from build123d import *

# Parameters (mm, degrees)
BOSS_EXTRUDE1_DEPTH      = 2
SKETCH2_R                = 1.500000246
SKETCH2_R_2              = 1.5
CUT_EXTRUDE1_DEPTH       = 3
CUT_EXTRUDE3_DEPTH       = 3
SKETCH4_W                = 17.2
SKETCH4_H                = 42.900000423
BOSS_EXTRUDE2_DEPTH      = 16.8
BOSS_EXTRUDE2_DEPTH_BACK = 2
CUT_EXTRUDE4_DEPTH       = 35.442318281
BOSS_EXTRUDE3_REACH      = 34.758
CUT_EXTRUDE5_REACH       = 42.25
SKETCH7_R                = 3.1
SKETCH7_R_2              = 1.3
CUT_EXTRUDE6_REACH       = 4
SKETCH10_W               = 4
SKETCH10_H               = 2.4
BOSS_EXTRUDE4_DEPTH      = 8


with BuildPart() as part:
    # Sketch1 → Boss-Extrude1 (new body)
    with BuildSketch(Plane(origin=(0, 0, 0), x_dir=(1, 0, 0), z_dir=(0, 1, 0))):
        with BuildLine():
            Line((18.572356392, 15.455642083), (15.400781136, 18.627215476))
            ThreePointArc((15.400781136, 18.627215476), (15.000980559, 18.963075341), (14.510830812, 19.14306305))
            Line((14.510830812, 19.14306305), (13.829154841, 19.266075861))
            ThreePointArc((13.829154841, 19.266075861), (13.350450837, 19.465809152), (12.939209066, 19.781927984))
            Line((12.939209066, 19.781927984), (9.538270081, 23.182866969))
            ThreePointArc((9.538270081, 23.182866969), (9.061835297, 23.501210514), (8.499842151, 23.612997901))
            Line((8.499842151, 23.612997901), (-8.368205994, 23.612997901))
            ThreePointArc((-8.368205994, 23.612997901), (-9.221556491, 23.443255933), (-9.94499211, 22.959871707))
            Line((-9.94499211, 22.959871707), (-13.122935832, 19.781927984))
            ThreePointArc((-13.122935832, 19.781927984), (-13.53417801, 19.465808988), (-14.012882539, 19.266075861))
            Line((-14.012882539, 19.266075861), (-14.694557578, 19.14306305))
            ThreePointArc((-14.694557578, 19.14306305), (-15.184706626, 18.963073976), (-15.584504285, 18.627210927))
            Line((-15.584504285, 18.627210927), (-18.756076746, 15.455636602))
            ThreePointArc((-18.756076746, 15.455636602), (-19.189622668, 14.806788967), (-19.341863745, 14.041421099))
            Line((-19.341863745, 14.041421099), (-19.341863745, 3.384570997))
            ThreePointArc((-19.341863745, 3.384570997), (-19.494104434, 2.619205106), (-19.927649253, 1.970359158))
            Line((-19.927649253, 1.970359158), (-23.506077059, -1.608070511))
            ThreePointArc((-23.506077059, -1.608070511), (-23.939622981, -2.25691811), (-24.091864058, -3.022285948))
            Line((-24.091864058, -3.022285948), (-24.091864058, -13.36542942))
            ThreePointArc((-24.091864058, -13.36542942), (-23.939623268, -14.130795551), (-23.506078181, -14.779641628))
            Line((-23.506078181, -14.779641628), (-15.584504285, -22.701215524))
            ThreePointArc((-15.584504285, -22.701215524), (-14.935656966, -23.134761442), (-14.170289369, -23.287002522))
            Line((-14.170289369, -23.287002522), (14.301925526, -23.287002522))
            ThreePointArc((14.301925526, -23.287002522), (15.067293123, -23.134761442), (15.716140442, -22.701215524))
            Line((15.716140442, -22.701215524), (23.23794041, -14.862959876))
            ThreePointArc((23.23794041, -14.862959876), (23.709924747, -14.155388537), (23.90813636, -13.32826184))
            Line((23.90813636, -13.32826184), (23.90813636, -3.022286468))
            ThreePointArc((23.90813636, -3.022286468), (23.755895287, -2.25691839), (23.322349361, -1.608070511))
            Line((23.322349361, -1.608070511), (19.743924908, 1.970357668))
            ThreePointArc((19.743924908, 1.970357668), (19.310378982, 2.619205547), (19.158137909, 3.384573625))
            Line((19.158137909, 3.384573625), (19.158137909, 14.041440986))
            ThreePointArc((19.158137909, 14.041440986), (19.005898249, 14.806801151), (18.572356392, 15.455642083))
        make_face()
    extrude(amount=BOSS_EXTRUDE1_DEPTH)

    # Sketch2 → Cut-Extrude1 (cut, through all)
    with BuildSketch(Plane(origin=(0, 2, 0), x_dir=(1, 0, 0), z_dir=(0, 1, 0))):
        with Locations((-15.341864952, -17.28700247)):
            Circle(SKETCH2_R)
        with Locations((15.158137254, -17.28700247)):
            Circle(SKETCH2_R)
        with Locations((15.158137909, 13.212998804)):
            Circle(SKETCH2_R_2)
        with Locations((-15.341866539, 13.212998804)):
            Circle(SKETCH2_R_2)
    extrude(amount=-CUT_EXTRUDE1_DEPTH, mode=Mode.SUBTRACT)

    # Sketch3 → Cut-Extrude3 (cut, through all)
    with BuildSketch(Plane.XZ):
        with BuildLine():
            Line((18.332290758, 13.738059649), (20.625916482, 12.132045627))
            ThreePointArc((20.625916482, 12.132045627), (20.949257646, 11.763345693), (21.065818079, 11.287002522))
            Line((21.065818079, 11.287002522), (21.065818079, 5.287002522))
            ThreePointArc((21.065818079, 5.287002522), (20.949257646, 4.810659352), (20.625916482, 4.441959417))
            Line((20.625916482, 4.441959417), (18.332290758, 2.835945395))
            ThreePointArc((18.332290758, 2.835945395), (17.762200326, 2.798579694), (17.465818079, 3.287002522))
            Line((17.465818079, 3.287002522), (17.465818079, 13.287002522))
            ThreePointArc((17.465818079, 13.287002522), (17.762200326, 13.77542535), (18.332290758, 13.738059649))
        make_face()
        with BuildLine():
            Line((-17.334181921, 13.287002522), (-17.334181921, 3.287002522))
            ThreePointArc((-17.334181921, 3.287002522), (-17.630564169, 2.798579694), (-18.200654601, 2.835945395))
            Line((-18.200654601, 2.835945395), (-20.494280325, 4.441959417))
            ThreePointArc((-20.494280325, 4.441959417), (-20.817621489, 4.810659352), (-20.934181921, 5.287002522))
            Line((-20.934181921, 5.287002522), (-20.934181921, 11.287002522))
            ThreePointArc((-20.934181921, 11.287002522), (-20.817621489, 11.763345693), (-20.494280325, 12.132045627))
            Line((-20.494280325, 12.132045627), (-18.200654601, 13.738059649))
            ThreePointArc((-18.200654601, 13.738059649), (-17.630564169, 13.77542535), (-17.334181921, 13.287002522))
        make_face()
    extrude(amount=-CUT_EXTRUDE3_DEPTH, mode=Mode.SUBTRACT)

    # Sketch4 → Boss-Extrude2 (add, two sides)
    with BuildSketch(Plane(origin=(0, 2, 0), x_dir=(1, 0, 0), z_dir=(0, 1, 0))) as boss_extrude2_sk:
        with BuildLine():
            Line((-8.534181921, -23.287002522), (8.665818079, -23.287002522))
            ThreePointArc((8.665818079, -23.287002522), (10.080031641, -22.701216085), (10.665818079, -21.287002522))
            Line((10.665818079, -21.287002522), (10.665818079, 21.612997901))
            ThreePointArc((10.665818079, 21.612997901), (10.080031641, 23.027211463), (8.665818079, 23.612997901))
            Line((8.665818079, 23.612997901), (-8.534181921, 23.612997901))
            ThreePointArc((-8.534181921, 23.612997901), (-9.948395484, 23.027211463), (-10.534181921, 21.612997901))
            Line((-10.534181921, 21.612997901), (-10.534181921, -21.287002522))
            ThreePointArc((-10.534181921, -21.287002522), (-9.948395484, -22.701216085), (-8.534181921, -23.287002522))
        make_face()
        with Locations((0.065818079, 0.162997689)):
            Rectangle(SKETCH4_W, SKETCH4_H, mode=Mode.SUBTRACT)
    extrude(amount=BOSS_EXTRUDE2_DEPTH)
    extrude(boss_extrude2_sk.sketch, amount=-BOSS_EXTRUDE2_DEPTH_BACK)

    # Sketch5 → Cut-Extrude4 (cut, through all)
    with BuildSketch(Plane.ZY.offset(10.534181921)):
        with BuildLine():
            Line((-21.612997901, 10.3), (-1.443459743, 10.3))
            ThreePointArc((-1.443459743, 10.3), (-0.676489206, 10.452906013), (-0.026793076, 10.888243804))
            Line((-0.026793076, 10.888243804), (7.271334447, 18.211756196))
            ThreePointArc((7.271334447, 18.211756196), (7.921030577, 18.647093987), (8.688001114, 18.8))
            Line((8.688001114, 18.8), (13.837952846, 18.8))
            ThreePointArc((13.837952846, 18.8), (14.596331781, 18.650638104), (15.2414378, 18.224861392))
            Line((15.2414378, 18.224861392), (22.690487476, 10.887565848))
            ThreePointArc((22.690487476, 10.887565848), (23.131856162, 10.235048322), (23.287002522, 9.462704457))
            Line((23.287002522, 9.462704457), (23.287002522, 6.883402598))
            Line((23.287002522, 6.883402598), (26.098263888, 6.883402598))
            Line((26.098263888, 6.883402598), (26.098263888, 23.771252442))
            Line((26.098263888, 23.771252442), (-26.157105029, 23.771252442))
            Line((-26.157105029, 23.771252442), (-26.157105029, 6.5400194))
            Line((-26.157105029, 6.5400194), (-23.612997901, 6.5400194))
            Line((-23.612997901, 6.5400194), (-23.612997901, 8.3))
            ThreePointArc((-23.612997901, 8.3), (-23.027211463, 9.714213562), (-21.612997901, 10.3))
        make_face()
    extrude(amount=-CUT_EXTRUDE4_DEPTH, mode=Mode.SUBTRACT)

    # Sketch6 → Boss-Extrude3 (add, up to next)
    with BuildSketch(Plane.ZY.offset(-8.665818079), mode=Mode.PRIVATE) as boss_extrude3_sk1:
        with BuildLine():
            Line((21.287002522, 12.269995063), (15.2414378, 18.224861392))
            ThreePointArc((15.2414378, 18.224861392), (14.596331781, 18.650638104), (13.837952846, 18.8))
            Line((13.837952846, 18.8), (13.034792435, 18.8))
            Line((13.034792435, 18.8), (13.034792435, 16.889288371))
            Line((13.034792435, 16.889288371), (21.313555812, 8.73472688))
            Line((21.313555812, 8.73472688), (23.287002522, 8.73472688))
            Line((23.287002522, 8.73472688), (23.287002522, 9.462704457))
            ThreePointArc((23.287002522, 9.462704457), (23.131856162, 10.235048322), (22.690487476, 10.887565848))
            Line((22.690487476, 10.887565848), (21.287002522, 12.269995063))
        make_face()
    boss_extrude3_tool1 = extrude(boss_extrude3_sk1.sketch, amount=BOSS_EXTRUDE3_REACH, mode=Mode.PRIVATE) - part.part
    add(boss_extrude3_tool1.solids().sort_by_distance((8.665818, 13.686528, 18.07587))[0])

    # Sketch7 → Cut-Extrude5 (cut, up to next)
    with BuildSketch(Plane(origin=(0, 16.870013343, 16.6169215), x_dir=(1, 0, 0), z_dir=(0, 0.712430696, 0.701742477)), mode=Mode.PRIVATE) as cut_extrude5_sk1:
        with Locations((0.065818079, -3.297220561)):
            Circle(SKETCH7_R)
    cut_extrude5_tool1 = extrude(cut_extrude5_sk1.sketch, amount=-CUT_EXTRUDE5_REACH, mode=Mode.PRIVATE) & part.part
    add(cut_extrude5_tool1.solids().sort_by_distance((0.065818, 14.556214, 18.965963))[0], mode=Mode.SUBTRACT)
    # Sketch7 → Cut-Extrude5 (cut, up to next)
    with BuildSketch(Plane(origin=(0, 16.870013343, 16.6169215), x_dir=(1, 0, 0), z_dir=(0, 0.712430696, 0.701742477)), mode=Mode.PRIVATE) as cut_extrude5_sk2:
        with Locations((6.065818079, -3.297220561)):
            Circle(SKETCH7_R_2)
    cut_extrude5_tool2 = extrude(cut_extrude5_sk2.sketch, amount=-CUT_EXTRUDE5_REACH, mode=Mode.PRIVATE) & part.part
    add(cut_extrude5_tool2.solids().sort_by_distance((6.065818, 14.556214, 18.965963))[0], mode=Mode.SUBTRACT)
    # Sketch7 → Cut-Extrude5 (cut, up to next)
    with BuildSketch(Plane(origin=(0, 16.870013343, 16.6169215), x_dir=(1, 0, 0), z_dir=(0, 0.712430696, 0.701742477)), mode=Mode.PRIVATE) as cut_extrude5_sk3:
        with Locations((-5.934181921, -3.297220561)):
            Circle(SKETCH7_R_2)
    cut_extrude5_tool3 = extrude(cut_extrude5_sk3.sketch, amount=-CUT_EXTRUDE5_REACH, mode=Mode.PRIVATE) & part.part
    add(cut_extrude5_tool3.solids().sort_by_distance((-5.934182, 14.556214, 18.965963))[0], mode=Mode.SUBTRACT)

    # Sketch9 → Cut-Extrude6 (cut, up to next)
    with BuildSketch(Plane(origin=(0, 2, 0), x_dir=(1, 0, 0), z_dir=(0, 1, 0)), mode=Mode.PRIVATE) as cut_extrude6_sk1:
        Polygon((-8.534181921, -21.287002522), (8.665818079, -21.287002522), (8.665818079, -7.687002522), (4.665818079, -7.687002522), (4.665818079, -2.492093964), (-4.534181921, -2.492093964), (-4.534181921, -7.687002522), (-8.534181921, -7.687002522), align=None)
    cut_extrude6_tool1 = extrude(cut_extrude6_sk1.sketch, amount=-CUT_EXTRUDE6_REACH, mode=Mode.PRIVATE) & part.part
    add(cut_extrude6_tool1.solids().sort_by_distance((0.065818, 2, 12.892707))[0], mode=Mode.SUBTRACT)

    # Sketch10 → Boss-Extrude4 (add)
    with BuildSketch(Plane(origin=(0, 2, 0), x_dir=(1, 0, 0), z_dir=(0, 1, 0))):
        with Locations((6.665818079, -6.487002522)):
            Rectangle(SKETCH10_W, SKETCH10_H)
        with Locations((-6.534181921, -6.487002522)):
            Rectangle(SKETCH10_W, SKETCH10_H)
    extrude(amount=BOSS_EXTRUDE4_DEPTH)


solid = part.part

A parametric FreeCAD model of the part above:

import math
import FreeCAD as App
import Part
import Sketcher
Q = App.Units.Quantity


def add_polygon(sketch, points):
    """Adds a closed chain of lines whose ends are joined by coincident constraints."""
    first, n = sketch.GeometryCount, len(points)
    for a, b in zip(points, points[1:] + points[:1]):
        sketch.addGeometry(Part.LineSegment(App.Vector(*a, 0), App.Vector(*b, 0)), False)
    for i in range(n):
        sketch.addConstraint(Sketcher.Constraint("Coincident", first + i, 2, first + (i + 1) % n, 1))

doc = App.newDocument("Part")
body = doc.addObject("PartDesign::Body", "Body")

sketch1 = body.newObject("Sketcher::SketchObject", "Sketch")
sketch1.AttachmentSupport = (doc.getObject("XZ_Plane"), [""])
sketch1.MapMode = "FlatFace"
sketch1.addGeometry([
    Part.LineSegment(App.Vector(18.572356, -15.455642, 0), App.Vector(15.400781, -18.627215, 0)),
    Part.ArcOfCircle(Part.Circle(App.Vector(14.242087, -17.653817, 0), App.Vector(0, 0, 1), 1.5133), math.radians(-79.770698), math.radians(-40.033021)),
    Part.LineSegment(App.Vector(14.510831, -19.143063, 0), App.Vector(13.829155, -19.266076, 0)),
    Part.ArcOfCircle(Part.Circle(App.Vector(14.353436, -21.196155, 0), App.Vector(0, 0, 1), 2.000019), math.radians(105.196974), math.radians(135)),
    Part.LineSegment(App.Vector(12.939209, -19.781928, 0), App.Vector(9.53827, -23.182867, 0)),
    Part.ArcOfCircle(Part.Circle(App.Vector(8.499842, -22.144439, 0), App.Vector(0, 0, 1), 1.468559), math.radians(-90), math.radians(-45)),
    Part.LineSegment(App.Vector(8.499842, -23.612998, 0), App.Vector(-8.368206, -23.612998, 0)),
    Part.ArcOfCircle(Part.Circle(App.Vector(-8.368206, -21.383086, 0), App.Vector(0, 0, 1), 2.229912), math.radians(-135), math.radians(-90)),
    Part.LineSegment(App.Vector(-9.944992, -22.959872, 0), App.Vector(-13.122936, -19.781928, 0)),
    Part.ArcOfCircle(Part.Circle(App.Vector(-14.537162, -21.196154, 0), App.Vector(0, 0, 1), 2.000018), math.radians(45), math.radians(74.803078)),
    Part.LineSegment(App.Vector(-14.012883, -19.266076, 0), App.Vector(-14.694558, -19.143063, 0)),
    Part.ArcOfCircle(Part.Circle(App.Vector(-14.425817, -17.65384, 0), App.Vector(0, 0, 1), 1.513276), math.radians(-139.967606), math.radians(-100.229316)),
    Part.LineSegment(App.Vector(-15.584504, -18.627211, 0), App.Vector(-18.756077, -15.455637, 0)),
    Part.ArcOfCircle(Part.Circle(App.Vector(-17.34186, -14.041421, 0), App.Vector(0, 0, 1), 2.000003), math.radians(-180), math.radians(-135.000017)),
    Part.LineSegment(App.Vector(-19.341864, -14.041421, 0), App.Vector(-19.341864, -3.384571, 0)),
    Part.ArcOfCircle(Part.Circle(App.Vector(-21.341862, -3.384571, 0), App.Vector(0, 0, 1), 1.999998), math.radians(0), math.radians(44.999985)),
    Part.LineSegment(App.Vector(-19.927649, -1.970359, 0), App.Vector(-23.506077, 1.608071, 0)),
    Part.ArcOfCircle(Part.Circle(App.Vector(-22.091861, 3.022286, 0), App.Vector(0, 0, 1), 2.000003), math.radians(180), math.radians(224.999985)),
    Part.LineSegment(App.Vector(-24.091864, 3.022286, 0), App.Vector(-24.091864, 13.365429, 0)),
    Part.ArcOfCircle(Part.Circle(App.Vector(-22.091866, 13.365429, 0), App.Vector(0, 0, 1), 1.999998), math.radians(135), math.radians(180)),
    Part.LineSegment(App.Vector(-23.506078, 14.779642, 0), App.Vector(-15.584504, 22.701216, 0)),
    Part.ArcOfCircle(Part.Circle(App.Vector(-14.170289, 21.287001, 0), App.Vector(0, 0, 1), 2.000002), math.radians(90), math.radians(135)),
    Part.LineSegment(App.Vector(-14.170289, 23.287003, 0), App.Vector(14.301926, 23.287003, 0)),
    Part.ArcOfCircle(Part.Circle(App.Vector(14.301926, 21.287001, 0), App.Vector(0, 0, 1), 2.000002), math.radians(45), math.radians(90)),
    Part.LineSegment(App.Vector(15.71614, 22.701216, 0), App.Vector(23.23794, 14.86296, 0)),
    Part.ArcOfCircle(Part.Circle(App.Vector(21.490703, 13.186264, 0), App.Vector(0, 0, 1), 2.4216), math.radians(3.361638), math.radians(43.81973)),
    Part.LineSegment(App.Vector(23.908136, 13.328262, 0), App.Vector(23.908136, 3.022286, 0)),
    Part.ArcOfCircle(Part.Circle(App.Vector(21.908132, 3.022286, 0), App.Vector(0, 0, 1), 2.000004), math.radians(-44.99997), math.radians(0)),
    Part.LineSegment(App.Vector(23.322349, 1.608071, 0), App.Vector(19.743925, -1.970358, 0)),
    Part.ArcOfCircle(Part.Circle(App.Vector(21.158142, -3.384574, 0), App.Vector(0, 0, 1), 2.000004), math.radians(135.00003), math.radians(180)),
    Part.LineSegment(App.Vector(19.158138, -3.384574, 0), App.Vector(19.158138, -14.041441, 0)),
    Part.ArcOfCircle(Part.Circle(App.Vector(17.158156, -14.041441, 0), App.Vector(0, 0, 1), 1.999982), math.radians(-45.000017), math.radians(0)),
], False)
sketch1.addConstraint([
    Sketcher.Constraint("Coincident", 0, 2, 1, 2),
    Sketcher.Constraint("Coincident", 1, 1, 2, 1),
    Sketcher.Constraint("Coincident", 2, 2, 3, 1),
    Sketcher.Constraint("Coincident", 3, 2, 4, 1),
    Sketcher.Constraint("Coincident", 4, 2, 5, 2),
    Sketcher.Constraint("Coincident", 5, 1, 6, 1),
    Sketcher.Constraint("Coincident", 6, 2, 7, 2),
    Sketcher.Constraint("Coincident", 7, 1, 8, 1),
    Sketcher.Constraint("Coincident", 8, 2, 9, 1),
    Sketcher.Constraint("Coincident", 9, 2, 10, 1),
    Sketcher.Constraint("Coincident", 10, 2, 11, 2),
    Sketcher.Constraint("Coincident", 11, 1, 12, 1),
    Sketcher.Constraint("Coincident", 12, 2, 13, 2),
    Sketcher.Constraint("Coincident", 13, 1, 14, 1),
    Sketcher.Constraint("Coincident", 14, 2, 15, 1),
    Sketcher.Constraint("Coincident", 15, 2, 16, 1),
    Sketcher.Constraint("Coincident", 16, 2, 17, 2),
    Sketcher.Constraint("Coincident", 17, 1, 18, 1),
    Sketcher.Constraint("Coincident", 18, 2, 19, 2),
    Sketcher.Constraint("Coincident", 19, 1, 20, 1),
    Sketcher.Constraint("Coincident", 20, 2, 21, 2),
    Sketcher.Constraint("Coincident", 21, 1, 22, 1),
    Sketcher.Constraint("Coincident", 22, 2, 23, 2),
    Sketcher.Constraint("Coincident", 23, 1, 24, 1),
    Sketcher.Constraint("Coincident", 24, 2, 25, 2),
    Sketcher.Constraint("Coincident", 25, 1, 26, 1),
    Sketcher.Constraint("Coincident", 26, 2, 27, 2),
    Sketcher.Constraint("Coincident", 27, 1, 28, 1),
    Sketcher.Constraint("Coincident", 28, 2, 29, 1),
    Sketcher.Constraint("Coincident", 29, 2, 30, 1),
    Sketcher.Constraint("Coincident", 30, 2, 31, 2),
    Sketcher.Constraint("Coincident", 31, 1, 0, 1),
    Sketcher.Constraint("Horizontal", 6),
    Sketcher.Constraint("Vertical", 14),
    Sketcher.Constraint("Vertical", 18),
    Sketcher.Constraint("Horizontal", 22),
    Sketcher.Constraint("Vertical", 26),
    Sketcher.Constraint("Vertical", 30),
    Sketcher.Constraint("Radius", 15, Q("1.999998 mm")),
    Sketcher.Constraint("Radius", 19, Q("1.999998 mm")),
    Sketcher.Constraint("Radius", 21, Q("2.000002 mm")),
    Sketcher.Constraint("Radius", 23, Q("2.000002 mm")),
    Sketcher.Constraint("DistanceX", 15, 3, 13, 3, Q("4.000001 mm")),
    Sketcher.Constraint("Radius", 1, Q("1.5133 mm")),
    Sketcher.Constraint("Radius", 25, Q("2.4216 mm")),
    Sketcher.Constraint("Radius", 3, Q("2.000019 mm")),
    Sketcher.Constraint("Radius", 5, Q("1.468559 mm")),
    Sketcher.Constraint("Radius", 31, Q("1.999982 mm")),
    Sketcher.Constraint("DistanceX", 17, 3, 15, 3, Q("0.749999 mm")),
    Sketcher.Constraint("DistanceY", 15, 3, 19, 3, Q("16.75 mm")),
    Sketcher.Constraint("DistanceX", 17, 1, 14, 2, Q("4.75 mm")),
    Sketcher.Constraint("DistanceX", 29, 2, 26, 2, Q("4.749998 mm")),
    Sketcher.Constraint("DistanceY", -1, 1, 21, 3, Q("21.287001 mm")),
    Sketcher.Constraint("Radius", 7, Q("2.229912 mm")),
    Sketcher.Constraint("Radius", 9, Q("2.000018 mm")),
    Sketcher.Constraint("Radius", 11, Q("1.513276 mm")),
    Sketcher.Constraint("Radius", 27, Q("2.000004 mm")),
    Sketcher.Constraint("Radius", 29, Q("2.000004 mm")),
    Sketcher.Constraint("DistanceY", 5, 3, 31, 3, Q("8.102998 mm")),
    Sketcher.Constraint("DistanceX", 23, 1, 29, 3, Q("5.442002 mm")),
    Sketcher.Constraint("DistanceX", 6, 2, 6, 1, Q("16.868048 mm")),
    Sketcher.Constraint("DistanceY", 14, 1, 14, 2, Q("10.65685 mm")),
    Sketcher.Constraint("DistanceX", 9, 3, 3, 3, Q("28.890598 mm")),
    Sketcher.Constraint("DistanceY", 5, 3, 11, 3, Q("4.490599 mm")),
    Sketcher.Constraint("DistanceX", 13, 3, 9, 3, Q("2.804699 mm")),
    Sketcher.Constraint("DistanceX", 5, 3, 29, 3, Q("12.6583 mm")),
    Sketcher.Constraint("DistanceY", 0, 2, 1, 3, Q("0.973399 mm")),
    Sketcher.Constraint("DistanceX", 23, 1, 24, 2, Q("7.5218 mm")),
    Sketcher.Constraint("DistanceY", 25, 1, 24, 2, Q("1.534698 mm")),
    Sketcher.Constraint("DistanceY", 31, 1, 30, 2, Q("1.414201 mm")),
    Sketcher.Constraint("DistanceX", 31, 3, 31, 1, Q("1.4142 mm")),
    Sketcher.Constraint("Distance", 8, Q("4.494291 mm")),
    Sketcher.Constraint("Distance", 28, Q("5.060659 mm")),
    Sketcher.Constraint("DistanceX", 22, 1, 22, 2, Q("28.472215 mm")),
    Sketcher.Constraint("DistanceY", 18, 1, 18, 2, Q("10.343143 mm")),
    Sketcher.Constraint("DistanceY", 26, 2, 26, 1, Q("10.305975 mm")),
    Sketcher.Constraint("DistanceY", 30, 2, 30, 1, Q("10.656867 mm")),
    Sketcher.Constraint("DistanceY", 5, 3, -1, 1, Q("22.144439 mm")),
    Sketcher.Constraint("DistanceX", 9, 3, -1, 1, Q("14.537162 mm")),
    Sketcher.Constraint("DistanceY", 13, 3, -1, 1, Q("14.041421 mm")),
    Sketcher.Constraint("DistanceY", 15, 3, -1, 1, Q("3.384571 mm")),
    Sketcher.Constraint("DistanceX", 21, 3, -1, 1, Q("14.170289 mm")),
    Sketcher.Constraint("DistanceX", -1, 1, 27, 3, Q("21.908132 mm")),
    Sketcher.Constraint("DistanceX", -1, 1, 0, 2, Q("15.400781 mm")),
    Sketcher.Constraint("DistanceX", -1, 1, 1, 1, Q("14.510831 mm")),
    Sketcher.Constraint("DistanceX", -1, 1, 3, 2, Q("12.939209 mm")),
    Sketcher.Constraint("DistanceX", -1, 1, 4, 2, Q("9.53827 mm")),
    Sketcher.Constraint("DistanceY", 7, 1, -1, 1, Q("22.959872 mm")),
    Sketcher.Constraint("DistanceY", 11, 1, -1, 1, Q("18.627211 mm")),
    Sketcher.Constraint("DistanceY", 13, 1, -1, 1, Q("14.041421 mm")),
    Sketcher.Constraint("DistanceX", 15, 2, -1, 1, Q("19.927649 mm")),
    Sketcher.Constraint("DistanceY", -1, 1, 16, 2, Q("1.608071 mm")),
    Sketcher.Constraint("DistanceY", -1, 1, 18, 2, Q("13.365429 mm")),
    Sketcher.Constraint("DistanceX", 19, 1, -1, 1, Q("23.506078 mm")),
    Sketcher.Constraint("DistanceX", 21, 1, -1, 1, Q("14.170289 mm")),
    Sketcher.Constraint("DistanceY", -1, 1, 24, 2, Q("14.86296 mm")),
    Sketcher.Constraint("DistanceX", -1, 1, 27, 1, Q("23.322349 mm")),
    Sketcher.Constraint("DistanceY", -1, 1, 27, 1, Q("1.608071 mm")),
    Sketcher.Constraint("DistanceY", 3, 3, 1, 3, Q("3.542338 mm")),
    Sketcher.Constraint("DistanceX", 7, 3, 5, 3, Q("16.868048 mm")),
    Sketcher.Constraint("DistanceY", 7, 3, 3, 3, Q("0.18693 mm")),
    Sketcher.Constraint("DistanceY", 7, 3, 9, 3, Q("0.186932 mm")),
    Sketcher.Constraint("DistanceX", 11, 3, 7, 3, Q("6.057611 mm")),
    Sketcher.Constraint("DistanceY", 9, 3, 17, 3, Q("24.21844 mm")),
    Sketcher.Constraint("DistanceX", 19, 3, 23, 3, Q("36.393791 mm")),
    Sketcher.Constraint("DistanceY", 29, 3, 27, 3, Q("6.40686 mm")),
    Sketcher.Constraint("DistanceX", 2, 2, 1, 3, Q("0.412932 mm")),
    Sketcher.Constraint("DistanceX", 11, 3, 6, 2, Q("6.057611 mm")),
    Sketcher.Constraint("DistanceX", 9, 3, 9, 2, Q("0.524279 mm")),
    Sketcher.Constraint("DistanceX", 10, 2, 11, 3, Q("0.26874 mm")),
    Sketcher.Constraint("DistanceX", 12, 2, 11, 3, Q("4.330259 mm")),
    Sketcher.Constraint("DistanceX", 19, 3, 20, 2, Q("6.507362 mm")),
])
pad1 = body.newObject("PartDesign::Pad", "Pad")
pad1.Profile = sketch1
pad1.Length = 2
pad1.Reversed = True

sketch2 = body.newObject("Sketcher::SketchObject", "Sketch001")
sketch2.AttachmentSupport = (doc.getObject("XZ_Plane"), [""])
sketch2.MapMode = "FlatFace"
sketch2.AttachmentOffset = App.Placement(App.Vector(0, 0, -2), App.Rotation())
sketch2.addGeometry([
    Part.Circle(App.Vector(-15.3, 17.3, 0), App.Vector(0, 0, 1), 1.5),
    Part.Circle(App.Vector(15.2, 17.3, 0), App.Vector(0, 0, 1), 1.5),
    Part.Circle(App.Vector(15.2, -13.2, 0), App.Vector(0, 0, 1), 1.5),
    Part.Circle(App.Vector(-15.3, -13.2, 0), App.Vector(0, 0, 1), 1.5),
], False)
sketch2.addConstraint([
    Sketcher.Constraint("Equal", 0, 1),
    Sketcher.Constraint("Equal", 1, 2),
    Sketcher.Constraint("Equal", 2, 3),
    Sketcher.Constraint("Horizontal", 0, 3, 1, 3),
    Sketcher.Constraint("Horizontal", 2, 3, 3, 3),
    Sketcher.Constraint("Vertical", 1, 3, 2, 3),
    Sketcher.Constraint("Vertical", 0, 3, 3, 3),
    Sketcher.Constraint("Diameter", 0, Q("3 mm")),
    Sketcher.Constraint("DistanceY", 2, 3, 1, 3, Q("30.500001 mm")),
    Sketcher.Constraint("DistanceY", 2, 3, -1, 1, Q("13.212999 mm")),
    Sketcher.Constraint("DistanceX", 0, 3, -1, 1, Q("15.341865 mm")),
    Sketcher.Constraint("DistanceX", -1, 1, 1, 3, Q("15.158137 mm")),
])
pocket1 = body.newObject("PartDesign::Pocket", "Pocket")
pocket1.Profile = sketch2
pocket1.Type = "ThroughAll"
pocket1.Reversed = True

sketch3 = body.newObject("Sketcher::SketchObject", "Sketch002")
sketch3.AttachmentSupport = (doc.getObject("XZ_Plane"), [""])
sketch3.MapMode = "FlatFace"
sketch3.addGeometry([
    Part.LineSegment(App.Vector(20.6, 12.1, 0), App.Vector(18.3, 13.7, 0)),
    Part.ArcOfCircle(Part.Circle(App.Vector(18, 13.3, 0), App.Vector(0, 0, 1), 0.6), math.radians(55), math.radians(180)),
    Part.LineSegment(App.Vector(17.5, 13.3, 0), App.Vector(17.5, 3.3, 0)),
    Part.ArcOfCircle(Part.Circle(App.Vector(18, 3.3, 0), App.Vector(0, 0, 1), 0.6), math.radians(180), math.radians(305)),
    Part.LineSegment(App.Vector(18.3, 2.8, 0), App.Vector(20.6, 4.4, 0)),
    Part.ArcOfCircle(Part.Circle(App.Vector(20, 5.3, 0), App.Vector(0, 0, 1), 1), math.radians(-55), math.radians(0)),
    Part.LineSegment(App.Vector(21.1, 5.3, 0), App.Vector(21.1, 11.3, 0)),
    Part.ArcOfCircle(Part.Circle(App.Vector(20, 11.3, 0), App.Vector(0, 0, 1), 1), math.radians(0), math.radians(55)),
    Part.LineSegment(App.Vector(-17.3, 3.3, 0), App.Vector(-17.3, 13.3, 0)),
    Part.ArcOfCircle(Part.Circle(App.Vector(-17.9, 13.3, 0), App.Vector(0, 0, 1), 0.6), math.radians(0), math.radians(125)),
    Part.LineSegment(App.Vector(-18.2, 13.7, 0), App.Vector(-20.5, 12.1, 0)),
    Part.ArcOfCircle(Part.Circle(App.Vector(-19.9, 11.3, 0), App.Vector(0, 0, 1), 1), math.radians(125), math.radians(180)),
    Part.LineSegment(App.Vector(-20.9, 11.3, 0), App.Vector(-20.9, 5.3, 0)),
    Part.ArcOfCircle(Part.Circle(App.Vector(-19.9, 5.3, 0), App.Vector(0, 0, 1), 1), math.radians(180), math.radians(235)),
    Part.LineSegment(App.Vector(-20.5, 4.4, 0), App.Vector(-18.2, 2.8, 0)),
    Part.ArcOfCircle(Part.Circle(App.Vector(-17.9, 3.3, 0), App.Vector(0, 0, 1), 0.6), math.radians(-125), math.radians(0)),
], False)
sketch3.addConstraint([
    Sketcher.Constraint("Tangent", 0, 2, 1, 1),
    Sketcher.Constraint("Tangent", 1, 2, 2, 1),
    Sketcher.Constraint("Tangent", 2, 2, 3, 1),
    Sketcher.Constraint("Tangent", 3, 2, 4, 1),
    Sketcher.Constraint("Tangent", 4, 2, 5, 1),
    Sketcher.Constraint("Tangent", 5, 2, 6, 1),
    Sketcher.Constraint("Tangent", 6, 2, 7, 1),
    Sketcher.Constraint("Tangent", 7, 2, 0, 1),
    Sketcher.Constraint("Tangent", 8, 2, 9, 1),
    Sketcher.Constraint("Tangent", 9, 2, 10, 1),
    Sketcher.Constraint("Tangent", 10, 2, 11, 1),
    Sketcher.Constraint("Tangent", 11, 2, 12, 1),
    Sketcher.Constraint("Tangent", 12, 2, 13, 1),
    Sketcher.Constraint("Tangent", 13, 2, 14, 1),
    Sketcher.Constraint("Tangent", 14, 2, 15, 1),
    Sketcher.Constraint("Tangent", 15, 2, 8, 1),
    Sketcher.Constraint("Vertical", 2),
    Sketcher.Constraint("Vertical", 6),
    Sketcher.Constraint("Vertical", 8),
    Sketcher.Constraint("Vertical", 12),
    Sketcher.Constraint("Equal", 1, 3),
    Sketcher.Constraint("Equal", 5, 7),
    Sketcher.Constraint("Equal", 3, 9),
    Sketcher.Constraint("Equal", 7, 11),
    Sketcher.Constraint("Equal", 11, 13),
    Sketcher.Constraint("Equal", 9, 15),
    Sketcher.Constraint("Parallel", 4, 10),
    Sketcher.Constraint("Parallel", 0, 14),
    Sketcher.Constraint("Horizontal", 1, 3, 9, 3),
    Sketcher.Constraint("Horizontal", 7, 3, 11, 3),
    Sketcher.Constraint("Horizontal", 5, 3, 13, 3),
    Sketcher.Constraint("Horizontal", 3, 3, 15, 3),
    Sketcher.Constraint("DistanceY", 2, 2, 2, 1, Q("10 mm")),
    Sketcher.Constraint("DistanceY", 6, 1, 6, 2, Q("6 mm")),
    Sketcher.Constraint("Angle", 0, Q("145 deg")),
    Sketcher.Constraint("Distance", 0, Q("2.8 mm")),
    Sketcher.Constraint("DistanceX", 2, 2, 5, 2, Q("3.6 mm")),
    Sketcher.Constraint("DistanceX", 8, 2, 1, 2, Q("34.8 mm")),
    Sketcher.Constraint("DistanceX", -1, 1, 5, 3, Q("20.034211 mm")),
    Sketcher.Constraint("DistanceY", -1, 1, 0, 2, Q("13.73806 mm")),
])
pocket2 = body.newObject("PartDesign::Pocket", "Pocket001")
pocket2.Profile = sketch3
pocket2.Type = "ThroughAll"

sketch4 = body.newObject("Sketcher::SketchObject", "Sketch003")
sketch4.AttachmentSupport = (doc.getObject("XZ_Plane"), [""])
sketch4.MapMode = "FlatFace"
sketch4.AttachmentOffset = App.Placement(App.Vector(0, 0, -2), App.Rotation())
sketch4.addGeometry(Part.LineSegment(App.Vector(-8.5, 23.3, 0), App.Vector(8.7, 23.3, 0)), False)
sketch4.addGeometry(Part.ArcOfCircle(Part.Circle(App.Vector(8.7, 21.3, 0), App.Vector(0, 0, 1), 2), math.radians(0), math.radians(90)), False)
sketch4.addGeometry(Part.LineSegment(App.Vector(10.7, 21.3, 0), App.Vector(10.7, -21.6, 0)), False)
sketch4.addGeometry(Part.ArcOfCircle(Part.Circle(App.Vector(8.7, -21.6, 0), App.Vector(0, 0, 1), 2), math.radians(-90), math.radians(0)), False)
sketch4.addGeometry(Part.LineSegment(App.Vector(8.7, -23.6, 0), App.Vector(-8.5, -23.6, 0)), False)
sketch4.addGeometry(Part.ArcOfCircle(Part.Circle(App.Vector(-8.5, -21.6, 0), App.Vector(0, 0, 1), 2), math.radians(180), math.radians(270)), False)
sketch4.addGeometry(Part.LineSegment(App.Vector(-10.5, -21.6, 0), App.Vector(-10.5, 21.3, 0)), False)
sketch4.addGeometry(Part.ArcOfCircle(Part.Circle(App.Vector(-8.5, 21.3, 0), App.Vector(0, 0, 1), 2), math.radians(90), math.radians(180)), False)
add_polygon(sketch4, [(8.7, 21.3), (-8.5, 21.3), (-8.5, -21.6), (8.7, -21.6)])
sketch4.addConstraint([
    Sketcher.Constraint("Tangent", 0, 2, 1, 2),
    Sketcher.Constraint("Tangent", 1, 1, 2, 1),
    Sketcher.Constraint("Tangent", 2, 2, 3, 2),
    Sketcher.Constraint("Tangent", 3, 1, 4, 1),
    Sketcher.Constraint("Tangent", 4, 2, 5, 2),
    Sketcher.Constraint("Tangent", 5, 1, 6, 1),
    Sketcher.Constraint("Tangent", 6, 2, 7, 2),
    Sketcher.Constraint("Tangent", 7, 1, 0, 1),
    Sketcher.Constraint("Horizontal", 0),
    Sketcher.Constraint("Vertical", 2),
    Sketcher.Constraint("Horizontal", 4),
    Sketcher.Constraint("Vertical", 6),
    Sketcher.Constraint("Horizontal", 8),
    Sketcher.Constraint("Vertical", 9),
    Sketcher.Constraint("Horizontal", 10),
    Sketcher.Constraint("Vertical", 11),
    Sketcher.Constraint("Coincident", 8, 2, 7, 3),
    Sketcher.Constraint("Coincident", 9, 2, 5, 3),
    Sketcher.Constraint("Coincident", 10, 2, 3, 3),
    Sketcher.Constraint("Equal", 1, 3),
    Sketcher.Constraint("Radius", 1, Q("2 mm")),
    Sketcher.Constraint("DistanceX", 0, 1, 0, 2, Q("17.2 mm")),
    Sketcher.Constraint("DistanceY", 2, 2, 2, 1, Q("42.9 mm")),
    Sketcher.Constraint("DistanceX", -1, 1, 1, 3, Q("8.665818 mm")),
    Sketcher.Constraint("DistanceY", -1, 1, 1, 3, Q("21.287003 mm")),
])
pad2 = body.newObject("PartDesign::Pad", "Pad001")
pad2.Profile = sketch4
pad2.Type = "TwoLengths"
pad2.Length = 16.8
pad2.Length2 = 2
pad2.Reversed = True

sketch5 = body.newObject("Sketcher::SketchObject", "Sketch004")
sketch5.AttachmentSupport = (doc.getObject("YZ_Plane"), [""])
sketch5.MapMode = "FlatFace"
sketch5.AttachmentOffset = App.Placement(App.Vector(0, 0, -10.534182), App.Rotation())
sketch5.addGeometry([
    Part.LineSegment(App.Vector(10.3, -21.6, 0), App.Vector(10.3, -1.4, 0)),
    Part.ArcOfCircle(Part.Circle(App.Vector(12.3, -1.4, 0), App.Vector(0, 0, 1), 2), math.radians(135), math.radians(180)),
    Part.LineSegment(App.Vector(10.9, 0, 0), App.Vector(18.2, 7.3, 0)),
    Part.ArcOfCircle(Part.Circle(App.Vector(16.8, 8.7, 0), App.Vector(0, 0, 1), 2), math.radians(-45), math.radians(0)),
    Part.LineSegment(App.Vector(18.8, 8.7, 0), App.Vector(18.8, 13.8, 0)),
    Part.ArcOfCircle(Part.Circle(App.Vector(16.8, 13.8, 0), App.Vector(0, 0, 1), 2), math.radians(0), math.radians(45)),
    Part.LineSegment(App.Vector(18.2, 15.2, 0), App.Vector(10.9, 22.7, 0)),
    Part.ArcOfCircle(Part.Circle(App.Vector(9.5, 21.3, 0), App.Vector(0, 0, 1), 2), math.radians(45), math.radians(90)),
    Part.LineSegment(App.Vector(9.5, 23.3, 0), App.Vector(6.9, 23.3, 0)),
    Part.LineSegment(App.Vector(6.9, 23.3, 0), App.Vector(6.9, 26.1, 0)),
    Part.LineSegment(App.Vector(6.9, 26.1, 0), App.Vector(23.8, 26.1, 0)),
    Part.LineSegment(App.Vector(23.8, 26.1, 0), App.Vector(23.8, -26.2, 0)),
    Part.LineSegment(App.Vector(23.8, -26.2, 0), App.Vector(6.5, -26.2, 0)),
    Part.LineSegment(App.Vector(6.5, -26.2, 0), App.Vector(6.5, -23.6, 0)),
    Part.LineSegment(App.Vector(6.5, -23.6, 0), App.Vector(8.3, -23.6, 0)),
    Part.ArcOfCircle(Part.Circle(App.Vector(8.3, -21.6, 0), App.Vector(0, 0, 1), 2), math.radians(-90), math.radians(0)),
], False)
sketch5.addConstraint([
    Sketcher.Constraint("Tangent", 0, 2, 1, 2),
    Sketcher.Constraint("Tangent", 1, 1, 2, 1),
    Sketcher.Constraint("Tangent", 2, 2, 3, 1),
    Sketcher.Constraint("Tangent", 3, 2, 4, 1),
    Sketcher.Constraint("Tangent", 4, 2, 5, 1),
    Sketcher.Constraint("Tangent", 5, 2, 6, 1),
    Sketcher.Constraint("Tangent", 6, 2, 7, 1),
    Sketcher.Constraint("Tangent", 7, 2, 8, 1),
    Sketcher.Constraint("Coincident", 8, 2, 9, 1),
    Sketcher.Constraint("Coincident", 9, 2, 10, 1),
    Sketcher.Constraint("Coincident", 10, 2, 11, 1),
    Sketcher.Constraint("Coincident", 11, 2, 12, 1),
    Sketcher.Constraint("Coincident", 12, 2, 13, 1),
    Sketcher.Constraint("Coincident", 13, 2, 14, 1),
    Sketcher.Constraint("Tangent", 14, 2, 15, 1),
    Sketcher.Constraint("Tangent", 15, 2, 0, 1),
    Sketcher.Constraint("Vertical", 0),
    Sketcher.Constraint("Vertical", 4),
    Sketcher.Constraint("Horizontal", 8),
    Sketcher.Constraint("Vertical", 9),
    Sketcher.Constraint("Horizontal", 10),
    Sketcher.Constraint("Vertical", 11),
    Sketcher.Constraint("Horizontal", 12),
    Sketcher.Constraint("Vertical", 13),
    Sketcher.Constraint("Horizontal", 14),
    Sketcher.Constraint("Equal", 1, 3),
    Sketcher.Constraint("Equal", 3, 5),
    Sketcher.Constraint("Equal", 5, 7),
    Sketcher.Constraint("Equal", 7, 15),
    Sketcher.Constraint("Radius", 1, Q("2 mm")),
    Sketcher.Constraint("DistanceX", -1, 1, 1, 3, Q("12.3 mm")),
    Sketcher.Constraint("DistanceX", -1, 1, 3, 3, Q("16.8 mm")),
    Sketcher.Constraint("DistanceY", 15, 3, 7, 3, Q("42.9 mm")),
    Sketcher.Constraint("DistanceX", 8, 2, 8, 1, Q("2.579302 mm")),
    Sketcher.Constraint("DistanceY", -1, 1, 3, 3, Q("8.688001 mm")),
    Sketcher.Constraint("DistanceY", 3, 3, 7, 3, Q("12.599001 mm")),
    Sketcher.Constraint("DistanceX", 10, 1, 10, 2, Q("16.88785 mm")),
    Sketcher.Constraint("DistanceX", 14, 1, 14, 2, Q("1.759981 mm")),
    Sketcher.Constraint("DistanceY", 0, 1, 0, 2, Q("20.169538 mm")),
    Sketcher.Constraint("DistanceY", 4, 1, 4, 2, Q("5.149952 mm")),
    Sketcher.Constraint("DistanceY", 9, 1, 9, 2, Q("2.811261 mm")),
    Sketcher.Constraint("DistanceY", 11, 2, 11, 1, Q("52.255369 mm")),
    Sketcher.Constraint("DistanceX", 12, 2, 12, 1, Q("17.231233 mm")),
])
pocket3 = body.newObject("PartDesign::Pocket", "Pocket002")
pocket3.Profile = sketch5
pocket3.Type = "ThroughAll"
pocket3.Reversed = True

sketch6 = body.newObject("Sketcher::SketchObject", "Sketch005")
sketch6.AttachmentSupport = (doc.getObject("YZ_Plane"), [""])
sketch6.MapMode = "FlatFace"
sketch6.AttachmentOffset = App.Placement(App.Vector(0, 0, 8.665818), App.Rotation())
sketch6.addGeometry([
    Part.LineSegment(App.Vector(12.3, 21.3, 0), App.Vector(18.2, 15.2, 0)),
    Part.ArcOfCircle(Part.Circle(App.Vector(16.8, 13.8, 0), App.Vector(0, 0, 1), 2), math.radians(0), math.radians(45)),
    Part.LineSegment(App.Vector(18.8, 13.8, 0), App.Vector(18.8, 13, 0)),
    Part.LineSegment(App.Vector(18.8, 13, 0), App.Vector(16.9, 13, 0)),
    Part.LineSegment(App.Vector(16.9, 13, 0), App.Vector(8.7, 21.3, 0)),
    Part.LineSegment(App.Vector(8.7, 21.3, 0), App.Vector(8.7, 23.3, 0)),
    Part.LineSegment(App.Vector(8.7, 23.3, 0), App.Vector(9.5, 23.3, 0)),
    Part.ArcOfCircle(Part.Circle(App.Vector(9.5, 21.3, 0), App.Vector(0, 0, 1), 2), math.radians(45), math.radians(90)),
    Part.LineSegment(App.Vector(10.9, 22.7, 0), App.Vector(12.3, 21.3, 0)),
], False)
sketch6.addConstraint([
    Sketcher.Constraint("Tangent", 0, 2, 1, 2),
    Sketcher.Constraint("Tangent", 1, 1, 2, 1),
    Sketcher.Constraint("Coincident", 2, 2, 3, 1),
    Sketcher.Constraint("Coincident", 3, 2, 4, 1),
    Sketcher.Constraint("Coincident", 4, 2, 5, 1),
    Sketcher.Constraint("Coincident", 5, 2, 6, 1),
    Sketcher.Constraint("Tangent", 6, 2, 7, 2),
    Sketcher.Constraint("Tangent", 7, 1, 8, 1),
    Sketcher.Constraint("Coincident", 8, 2, 0, 1),
    Sketcher.Constraint("Vertical", 2),
    Sketcher.Constraint("Horizontal", 3),
    Sketcher.Constraint("Vertical", 5),
    Sketcher.Constraint("Horizontal", 6),
    Sketcher.Constraint("Equal", 1, 7),
    Sketcher.Constraint("Parallel", 0, 4),
    Sketcher.Constraint("Parallel", 4, 8),
    Sketcher.Constraint("Horizontal", 7, 3, 8, 2),
    Sketcher.Constraint("Radius", 1, Q("2 mm")),
    Sketcher.Constraint("DistanceX", -1, 1, 1, 3, Q("16.8 mm")),
    Sketcher.Constraint("DistanceX", 3, 2, 3, 1, Q("1.910712 mm")),
    Sketcher.Constraint("DistanceY", 2, 2, 2, 1, Q("0.80316 mm")),
    Sketcher.Constraint("Distance", 0, Q("8.485829 mm")),
    Sketcher.Constraint("DistanceX", 6, 1, 6, 2, Q("0.727978 mm")),
    Sketcher.Constraint("DistanceY", 5, 1, 5, 2, Q("1.973447 mm")),
    Sketcher.Constraint("DistanceY", -1, 1, 1, 3, Q("13.837953 mm")),
])
pad3 = body.newObject("PartDesign::Pad", "Pad002")
pad3.Profile = sketch6
pad3.Type = "UpToFirst"
pad3.Reversed = True

sketch7 = body.newObject("Sketcher::SketchObject", "Sketch006")
sketch7.Placement = App.Placement(App.Vector(0, 16.870013, 16.616922), App.Rotation(App.Vector(1, 0, 0), App.Vector(0, 0.701742477, -0.712430696), App.Vector(0, 0.712430696, 0.701742477), "ZXY"))
sketch7.addGeometry(Part.Circle(App.Vector(0.1, -3.3, 0), App.Vector(0, 0, 1), 3.1), False)
sketch7.addConstraint([
    Sketcher.Constraint("Diameter", 0, Q("6.2 mm")),
    Sketcher.Constraint("DistanceX", -1, 1, 0, 3, Q("0.065818 mm")),
    Sketcher.Constraint("DistanceY", 0, 3, -1, 1, Q("3.297221 mm")),
])
pocket4 = body.newObject("PartDesign::Pocket", "Pocket003")
pocket4.Profile = sketch7
pocket4.Type = "UpToFirst"

sketch8 = body.newObject("Sketcher::SketchObject", "Sketch007")
sketch8.Placement = App.Placement(App.Vector(0, 16.870013, 16.616922), App.Rotation(App.Vector(1, 0, 0), App.Vector(0, 0.701742477, -0.712430696), App.Vector(0, 0.712430696, 0.701742477), "ZXY"))
sketch8.addGeometry(Part.Circle(App.Vector(6.1, -3.3, 0), App.Vector(0, 0, 1), 1.3), False)
sketch8.addConstraint([
    Sketcher.Constraint("Diameter", 0, Q("2.6 mm")),
    Sketcher.Constraint("DistanceX", -1, 1, 0, 3, Q("6.065818 mm")),
    Sketcher.Constraint("DistanceY", 0, 3, -1, 1, Q("3.297221 mm")),
])
pocket5 = body.newObject("PartDesign::Pocket", "Pocket004")
pocket5.Profile = sketch8
pocket5.Type = "UpToFirst"

sketch9 = body.newObject("Sketcher::SketchObject", "Sketch008")
sketch9.Placement = App.Placement(App.Vector(0, 16.870013, 16.616922), App.Rotation(App.Vector(1, 0, 0), App.Vector(0, 0.701742477, -0.712430696), App.Vector(0, 0.712430696, 0.701742477), "ZXY"))
sketch9.addGeometry(Part.Circle(App.Vector(-5.9, -3.3, 0), App.Vector(0, 0, 1), 1.3), False)
sketch9.addConstraint([
    Sketcher.Constraint("Diameter", 0, Q("2.6 mm")),
    Sketcher.Constraint("DistanceX", 0, 3, -1, 1, Q("5.934182 mm")),
    Sketcher.Constraint("DistanceY", 0, 3, -1, 1, Q("3.297221 mm")),
])
pocket6 = body.newObject("PartDesign::Pocket", "Pocket005")
pocket6.Profile = sketch9
pocket6.Type = "UpToFirst"

sketch10 = body.newObject("Sketcher::SketchObject", "Sketch009")
sketch10.AttachmentSupport = (doc.getObject("XZ_Plane"), [""])
sketch10.MapMode = "FlatFace"
sketch10.AttachmentOffset = App.Placement(App.Vector(0, 0, -2), App.Rotation())
add_polygon(sketch10, [(-8.5, 21.3), (8.7, 21.3), (8.7, 7.7), (4.7, 7.7), (4.7, 2.5), (-4.5, 2.5), (-4.5, 7.7), (-8.5, 7.7)])
sketch10.addConstraint([
    Sketcher.Constraint("Horizontal", 0),
    Sketcher.Constraint("Vertical", 1),
    Sketcher.Constraint("Horizontal", 2),
    Sketcher.Constraint("Vertical", 3),
    Sketcher.Constraint("Horizontal", 4),
    Sketcher.Constraint("Vertical", 5),
    Sketcher.Constraint("Horizontal", 6),
    Sketcher.Constraint("Vertical", 7),
    Sketcher.Constraint("Horizontal", 2, 2, 5, 2),
    Sketcher.Constraint("Equal", 2, 6),
    Sketcher.Constraint("DistanceX", 2, 2, 2, 1, Q("4 mm")),
    Sketcher.Constraint("DistanceX", 0, 1, 0, 2, Q("17.2 mm")),
    Sketcher.Constraint("DistanceY", 1, 2, 1, 1, Q("13.6 mm")),
    Sketcher.Constraint("DistanceY", 3, 2, 3, 1, Q("5.194909 mm")),
    Sketcher.Constraint("DistanceX", -1, 1, 0, 2, Q("8.665818 mm")),
    Sketcher.Constraint("DistanceY", -1, 1, 0, 2, Q("21.287003 mm")),
])
pocket7 = body.newObject("PartDesign::Pocket", "Pocket006")
pocket7.Profile = sketch10
pocket7.Type = "UpToFirst"
pocket7.Reversed = True

sketch11 = body.newObject("Sketcher::SketchObject", "Sketch010")
sketch11.AttachmentSupport = (doc.getObject("XZ_Plane"), [""])
sketch11.MapMode = "FlatFace"
sketch11.AttachmentOffset = App.Placement(App.Vector(0, 0, -2), App.Rotation())
add_polygon(sketch11, [(4.7, 5.3), (4.7, 7.7), (8.7, 7.7), (8.7, 5.3)])
add_polygon(sketch11, [(-8.5, 5.3), (-8.5, 7.7), (-4.5, 7.7), (-4.5, 5.3)])
sketch11.addConstraint([
    Sketcher.Constraint("Vertical", 0),
    Sketcher.Constraint("Horizontal", 1),
    Sketcher.Constraint("Vertical", 2),
    Sketcher.Constraint("Horizontal", 3),
    Sketcher.Constraint("Vertical", 4),
    Sketcher.Constraint("Horizontal", 5),
    Sketcher.Constraint("Vertical", 6),
    Sketcher.Constraint("Horizontal", 7),
    Sketcher.Constraint("Horizontal", 1, 2, 4, 2),
    Sketcher.Constraint("Horizontal", 3, 2, 6, 2),
    Sketcher.Constraint("Equal", 3, 5),
    Sketcher.Constraint("DistanceX", 1, 1, 1, 2, Q("4 mm")),
    Sketcher.Constraint("DistanceY", 0, 1, 0, 2, Q("2.4 mm")),
    Sketcher.Constraint("DistanceX", 4, 2, 0, 2, Q("13.2 mm")),
    Sketcher.Constraint("DistanceX", -1, 1, 0, 2, Q("4.665818 mm")),
    Sketcher.Constraint("DistanceY", -1, 1, 0, 2, Q("7.687003 mm")),
])
pad4 = body.newObject("PartDesign::Pad", "Pad003")
pad4.Profile = sketch11
pad4.Length = 8
pad4.Reversed = True

doc.recompute()
